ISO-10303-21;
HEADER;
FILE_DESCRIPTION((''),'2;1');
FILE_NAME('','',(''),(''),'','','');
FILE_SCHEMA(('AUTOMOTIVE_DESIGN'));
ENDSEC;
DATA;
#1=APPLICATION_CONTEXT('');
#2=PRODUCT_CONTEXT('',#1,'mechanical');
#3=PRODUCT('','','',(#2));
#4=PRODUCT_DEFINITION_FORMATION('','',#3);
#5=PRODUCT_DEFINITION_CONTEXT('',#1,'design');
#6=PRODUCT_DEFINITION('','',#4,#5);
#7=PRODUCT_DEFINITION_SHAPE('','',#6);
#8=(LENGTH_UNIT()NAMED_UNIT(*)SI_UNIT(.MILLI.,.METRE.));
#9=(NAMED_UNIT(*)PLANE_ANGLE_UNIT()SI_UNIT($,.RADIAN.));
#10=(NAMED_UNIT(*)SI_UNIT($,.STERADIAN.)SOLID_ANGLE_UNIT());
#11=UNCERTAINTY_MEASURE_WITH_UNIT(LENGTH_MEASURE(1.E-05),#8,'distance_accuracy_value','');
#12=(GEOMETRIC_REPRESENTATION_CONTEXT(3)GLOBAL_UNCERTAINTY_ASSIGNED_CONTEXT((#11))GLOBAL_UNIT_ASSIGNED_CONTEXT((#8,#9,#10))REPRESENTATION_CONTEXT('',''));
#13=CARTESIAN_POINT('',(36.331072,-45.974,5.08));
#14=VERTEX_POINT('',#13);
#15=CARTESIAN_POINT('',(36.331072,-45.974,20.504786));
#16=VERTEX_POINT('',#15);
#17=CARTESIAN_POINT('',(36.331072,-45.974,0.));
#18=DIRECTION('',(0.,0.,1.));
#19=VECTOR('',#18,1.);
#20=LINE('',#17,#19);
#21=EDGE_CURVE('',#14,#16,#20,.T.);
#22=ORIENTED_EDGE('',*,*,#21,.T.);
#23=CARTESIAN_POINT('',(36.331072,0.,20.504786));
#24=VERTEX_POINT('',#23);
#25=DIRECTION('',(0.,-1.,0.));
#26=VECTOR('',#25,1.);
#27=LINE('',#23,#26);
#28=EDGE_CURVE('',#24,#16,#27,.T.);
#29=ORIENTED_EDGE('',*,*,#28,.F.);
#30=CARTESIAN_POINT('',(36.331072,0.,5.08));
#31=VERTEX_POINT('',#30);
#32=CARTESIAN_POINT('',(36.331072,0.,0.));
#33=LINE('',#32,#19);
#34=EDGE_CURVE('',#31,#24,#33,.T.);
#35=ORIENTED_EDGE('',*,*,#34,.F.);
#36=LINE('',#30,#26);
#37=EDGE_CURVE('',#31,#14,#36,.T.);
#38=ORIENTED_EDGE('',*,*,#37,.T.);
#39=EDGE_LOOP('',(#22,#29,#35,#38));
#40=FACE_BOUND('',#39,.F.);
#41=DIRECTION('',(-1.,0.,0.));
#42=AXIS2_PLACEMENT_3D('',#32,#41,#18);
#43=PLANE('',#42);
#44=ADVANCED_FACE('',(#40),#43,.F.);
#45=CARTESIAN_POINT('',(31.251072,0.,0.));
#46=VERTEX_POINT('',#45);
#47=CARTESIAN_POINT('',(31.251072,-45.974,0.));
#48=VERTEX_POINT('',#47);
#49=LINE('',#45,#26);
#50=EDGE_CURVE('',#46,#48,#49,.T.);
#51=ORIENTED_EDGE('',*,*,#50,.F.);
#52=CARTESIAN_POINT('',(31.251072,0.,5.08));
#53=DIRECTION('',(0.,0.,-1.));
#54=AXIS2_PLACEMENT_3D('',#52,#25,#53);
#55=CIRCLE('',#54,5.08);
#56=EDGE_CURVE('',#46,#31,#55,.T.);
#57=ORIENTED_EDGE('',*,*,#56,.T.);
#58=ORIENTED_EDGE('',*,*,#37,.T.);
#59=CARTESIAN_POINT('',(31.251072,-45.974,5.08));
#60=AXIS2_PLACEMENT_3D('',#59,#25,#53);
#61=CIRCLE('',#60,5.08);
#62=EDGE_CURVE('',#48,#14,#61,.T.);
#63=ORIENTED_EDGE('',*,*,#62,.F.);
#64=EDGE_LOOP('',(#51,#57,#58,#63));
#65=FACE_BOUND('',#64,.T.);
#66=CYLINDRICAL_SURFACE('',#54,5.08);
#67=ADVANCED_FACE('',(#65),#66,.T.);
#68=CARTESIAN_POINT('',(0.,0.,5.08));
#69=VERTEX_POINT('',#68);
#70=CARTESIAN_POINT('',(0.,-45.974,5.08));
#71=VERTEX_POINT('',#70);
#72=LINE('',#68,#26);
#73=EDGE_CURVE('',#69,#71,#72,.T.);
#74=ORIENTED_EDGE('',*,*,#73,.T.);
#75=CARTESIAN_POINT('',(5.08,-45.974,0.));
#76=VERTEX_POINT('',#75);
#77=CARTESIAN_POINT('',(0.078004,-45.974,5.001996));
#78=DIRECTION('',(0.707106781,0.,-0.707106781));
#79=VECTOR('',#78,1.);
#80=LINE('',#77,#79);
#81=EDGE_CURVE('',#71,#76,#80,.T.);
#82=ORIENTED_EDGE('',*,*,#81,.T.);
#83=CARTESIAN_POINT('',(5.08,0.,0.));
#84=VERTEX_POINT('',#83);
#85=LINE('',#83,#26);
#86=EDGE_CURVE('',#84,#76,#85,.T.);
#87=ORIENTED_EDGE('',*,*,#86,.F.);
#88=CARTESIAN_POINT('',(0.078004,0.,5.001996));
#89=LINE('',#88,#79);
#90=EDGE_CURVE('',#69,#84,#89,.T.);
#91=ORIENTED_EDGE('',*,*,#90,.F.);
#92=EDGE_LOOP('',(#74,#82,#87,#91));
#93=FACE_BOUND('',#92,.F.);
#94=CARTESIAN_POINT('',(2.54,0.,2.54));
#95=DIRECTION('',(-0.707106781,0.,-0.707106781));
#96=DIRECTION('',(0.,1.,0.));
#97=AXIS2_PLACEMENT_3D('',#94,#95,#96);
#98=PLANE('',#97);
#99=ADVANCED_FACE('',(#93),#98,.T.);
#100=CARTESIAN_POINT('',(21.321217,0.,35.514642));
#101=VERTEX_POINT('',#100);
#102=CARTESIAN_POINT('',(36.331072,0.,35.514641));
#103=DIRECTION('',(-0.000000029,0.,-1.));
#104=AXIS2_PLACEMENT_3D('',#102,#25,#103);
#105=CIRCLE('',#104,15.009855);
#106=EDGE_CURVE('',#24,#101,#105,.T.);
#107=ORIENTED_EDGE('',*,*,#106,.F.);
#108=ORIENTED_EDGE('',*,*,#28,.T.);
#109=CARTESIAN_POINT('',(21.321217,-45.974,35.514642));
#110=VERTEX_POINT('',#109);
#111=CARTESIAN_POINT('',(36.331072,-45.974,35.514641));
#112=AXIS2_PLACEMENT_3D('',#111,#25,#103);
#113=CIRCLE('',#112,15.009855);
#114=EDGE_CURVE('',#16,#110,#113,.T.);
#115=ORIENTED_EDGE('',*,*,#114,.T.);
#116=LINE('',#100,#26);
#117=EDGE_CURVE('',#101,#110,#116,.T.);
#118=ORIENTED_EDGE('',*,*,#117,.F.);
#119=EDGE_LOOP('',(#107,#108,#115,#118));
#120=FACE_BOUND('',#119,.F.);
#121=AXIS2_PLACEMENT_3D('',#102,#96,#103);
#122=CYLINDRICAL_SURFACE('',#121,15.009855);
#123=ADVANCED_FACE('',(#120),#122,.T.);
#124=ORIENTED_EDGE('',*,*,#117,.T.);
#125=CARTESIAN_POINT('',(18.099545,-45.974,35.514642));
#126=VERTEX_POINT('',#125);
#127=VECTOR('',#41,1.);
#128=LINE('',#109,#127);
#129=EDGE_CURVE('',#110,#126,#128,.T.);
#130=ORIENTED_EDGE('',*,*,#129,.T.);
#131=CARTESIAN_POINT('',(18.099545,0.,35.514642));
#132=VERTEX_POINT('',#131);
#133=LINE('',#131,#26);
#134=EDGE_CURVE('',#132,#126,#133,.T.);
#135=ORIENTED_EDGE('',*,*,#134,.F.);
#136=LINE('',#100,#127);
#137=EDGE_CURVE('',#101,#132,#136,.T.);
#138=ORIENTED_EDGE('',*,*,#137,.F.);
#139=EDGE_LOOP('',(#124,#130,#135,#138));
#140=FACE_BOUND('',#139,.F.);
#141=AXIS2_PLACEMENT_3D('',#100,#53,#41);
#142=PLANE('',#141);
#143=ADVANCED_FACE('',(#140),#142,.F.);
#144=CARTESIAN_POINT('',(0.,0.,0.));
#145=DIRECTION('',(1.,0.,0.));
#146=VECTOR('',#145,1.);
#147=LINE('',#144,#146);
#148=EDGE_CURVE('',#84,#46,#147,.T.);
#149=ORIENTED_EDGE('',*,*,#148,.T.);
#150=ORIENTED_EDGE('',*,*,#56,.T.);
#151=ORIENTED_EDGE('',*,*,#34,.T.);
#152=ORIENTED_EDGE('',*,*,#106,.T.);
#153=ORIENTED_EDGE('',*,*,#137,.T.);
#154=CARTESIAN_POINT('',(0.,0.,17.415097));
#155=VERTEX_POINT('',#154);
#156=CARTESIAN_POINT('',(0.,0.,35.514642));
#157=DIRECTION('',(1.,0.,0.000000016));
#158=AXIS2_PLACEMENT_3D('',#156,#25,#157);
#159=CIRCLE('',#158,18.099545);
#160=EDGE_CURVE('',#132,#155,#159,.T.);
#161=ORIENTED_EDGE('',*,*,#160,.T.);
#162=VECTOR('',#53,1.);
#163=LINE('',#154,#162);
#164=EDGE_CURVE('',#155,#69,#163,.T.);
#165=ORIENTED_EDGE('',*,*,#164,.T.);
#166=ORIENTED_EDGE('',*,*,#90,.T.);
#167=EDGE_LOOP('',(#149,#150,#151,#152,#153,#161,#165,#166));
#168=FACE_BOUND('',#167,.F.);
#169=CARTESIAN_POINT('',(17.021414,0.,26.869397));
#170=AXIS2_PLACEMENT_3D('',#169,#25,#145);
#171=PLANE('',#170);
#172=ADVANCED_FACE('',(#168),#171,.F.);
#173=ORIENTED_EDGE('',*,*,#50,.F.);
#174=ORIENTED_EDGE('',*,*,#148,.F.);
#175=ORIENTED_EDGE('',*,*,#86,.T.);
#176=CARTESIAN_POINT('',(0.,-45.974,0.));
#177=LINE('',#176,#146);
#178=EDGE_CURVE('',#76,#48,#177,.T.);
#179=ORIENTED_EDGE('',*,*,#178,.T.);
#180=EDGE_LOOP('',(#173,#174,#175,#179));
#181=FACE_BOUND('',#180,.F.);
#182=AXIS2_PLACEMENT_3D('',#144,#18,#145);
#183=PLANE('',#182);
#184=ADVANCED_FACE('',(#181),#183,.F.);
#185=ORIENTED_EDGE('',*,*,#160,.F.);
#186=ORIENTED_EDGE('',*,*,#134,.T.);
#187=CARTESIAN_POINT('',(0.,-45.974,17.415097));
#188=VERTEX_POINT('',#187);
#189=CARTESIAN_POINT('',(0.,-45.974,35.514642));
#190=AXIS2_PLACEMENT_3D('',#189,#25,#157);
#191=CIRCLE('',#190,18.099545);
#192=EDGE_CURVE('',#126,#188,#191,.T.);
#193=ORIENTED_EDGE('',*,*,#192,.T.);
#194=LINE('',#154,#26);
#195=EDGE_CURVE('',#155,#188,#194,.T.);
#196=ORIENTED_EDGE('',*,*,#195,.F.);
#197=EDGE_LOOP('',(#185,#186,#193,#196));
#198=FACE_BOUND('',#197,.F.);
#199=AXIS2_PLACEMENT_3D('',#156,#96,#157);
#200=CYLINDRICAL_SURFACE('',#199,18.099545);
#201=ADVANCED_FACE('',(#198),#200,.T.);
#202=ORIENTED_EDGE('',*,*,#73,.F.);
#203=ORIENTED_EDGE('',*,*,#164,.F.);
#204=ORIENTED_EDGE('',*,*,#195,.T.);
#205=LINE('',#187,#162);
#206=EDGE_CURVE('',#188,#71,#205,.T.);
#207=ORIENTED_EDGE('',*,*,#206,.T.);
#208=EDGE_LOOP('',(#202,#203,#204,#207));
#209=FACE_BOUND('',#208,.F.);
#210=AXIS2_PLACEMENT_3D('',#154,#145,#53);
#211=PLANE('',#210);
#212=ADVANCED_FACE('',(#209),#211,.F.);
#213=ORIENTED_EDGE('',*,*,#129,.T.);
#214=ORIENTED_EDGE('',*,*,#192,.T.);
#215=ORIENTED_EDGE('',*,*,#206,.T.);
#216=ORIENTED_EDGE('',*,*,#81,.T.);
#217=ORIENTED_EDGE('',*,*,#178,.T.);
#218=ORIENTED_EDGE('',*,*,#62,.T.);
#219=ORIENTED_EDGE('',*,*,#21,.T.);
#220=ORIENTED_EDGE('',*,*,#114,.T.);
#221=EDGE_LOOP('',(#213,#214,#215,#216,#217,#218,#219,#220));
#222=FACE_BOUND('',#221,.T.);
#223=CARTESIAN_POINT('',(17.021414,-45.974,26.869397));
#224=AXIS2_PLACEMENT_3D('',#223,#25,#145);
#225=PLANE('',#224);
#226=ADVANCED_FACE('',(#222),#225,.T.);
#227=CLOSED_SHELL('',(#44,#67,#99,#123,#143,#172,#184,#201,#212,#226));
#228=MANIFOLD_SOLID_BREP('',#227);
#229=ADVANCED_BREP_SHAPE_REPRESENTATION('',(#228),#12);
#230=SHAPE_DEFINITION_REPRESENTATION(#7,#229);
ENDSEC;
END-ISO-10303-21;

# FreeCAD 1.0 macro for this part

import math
import FreeCAD as App
import Part
import Sketcher
Q = App.Units.Quantity


def edges_at(feature, points):
    """Names of the edges that pass closest to the given points."""
    edges = feature.Shape.Edges
    near = lambda p: min(range(len(edges)), key=lambda i: edges[i].distToShape(Part.Vertex(*p))[0])
    return sorted({f"Edge{near(p) + 1}" for p in points})

doc = App.newDocument("Part")
body = doc.addObject("PartDesign::Body", "Body")

# Sketch on XZ plane
sketch1 = doc.addObject("Sketcher::SketchObject", "Sketch")
body.addObject(sketch1)
sketch1.AttachmentSupport = (doc.XZ_Plane, [""])
sketch1.MapMode = "FlatFace"
sketch1.addGeometry(Part.LineSegment(App.Vector(0, 17.415097, 0), App.Vector(0, 0, 0)), False)
sketch1.addGeometry(Part.LineSegment(App.Vector(0, 0, 0), App.Vector(36.331072, 0, 0)), False)
sketch1.addGeometry(Part.LineSegment(App.Vector(36.331072, 0, 0), App.Vector(36.331072, 20.504786, 0)), False)
sketch1.addGeometry(Part.ArcOfCircle(Part.Circle(App.Vector(36.331072, 35.514641, 0), App.Vector(0, 0, 1), 15.009855), math.radians(-90.000002), math.radians(179.999998)), False)
sketch1.addGeometry(Part.LineSegment(App.Vector(21.321217, 35.514642, 0), App.Vector(18.099545, 35.514642, 0)), False)
sketch1.addGeometry(Part.ArcOfCircle(Part.Circle(App.Vector(0, 35.514642, 0), App.Vector(0, 0, 1), 18.099545), math.radians(0.000001), math.radians(269.999999)), False)
sketch1.addConstraint(Sketcher.Constraint("Coincident", 0, 2, 1, 1))
sketch1.addConstraint(Sketcher.Constraint("Coincident", 1, 2, 2, 1))
sketch1.addConstraint(Sketcher.Constraint("Coincident", 2, 2, 3, 1))
sketch1.addConstraint(Sketcher.Constraint("Coincident", 3, 2, 4, 1))
sketch1.addConstraint(Sketcher.Constraint("Coincident", 4, 2, 5, 1))
sketch1.addConstraint(Sketcher.Constraint("Coincident", 5, 2, 0, 1))
sketch1.addConstraint(Sketcher.Constraint("Vertical", 0))
sketch1.addConstraint(Sketcher.Constraint("Horizontal", 1))
sketch1.addConstraint(Sketcher.Constraint("Vertical", 2))
sketch1.addConstraint(Sketcher.Constraint("Horizontal", 4))
sketch1.addConstraint(Sketcher.Constraint("Coincident", 0, 2, -1, 1))
sketch1.addConstraint(Sketcher.Constraint("PointOnObject", 5, 3, -2))
sketch1.addConstraint(Sketcher.Constraint("Horizontal", 3, 3, 5, 3))
sketch1.addConstraint(Sketcher.Constraint("Horizontal", 5, 3, 3, 2))
sketch1.addConstraint(Sketcher.Constraint("Vertical", 3, 3, 1, 2))
sketch1.addConstraint(Sketcher.Constraint("Radius", 3, 15.009855))
sketch1.addConstraint(Sketcher.Constraint("Radius", 5, 18.099545))
sketch1.addConstraint(Sketcher.Constraint("DistanceX", 1, 1, 1, 2, 36.331072))
sketch1.addConstraint(Sketcher.Constraint("DistanceY", 0, 2, 0, 1, 17.415097))
pad1 = doc.addObject("PartDesign::Pad", "Pad")
body.addObject(pad1)
pad1.Profile = sketch1
pad1.Length = Q("1.81 in")
doc.recompute()

chamfer = doc.addObject("PartDesign::Chamfer", "Chamfer")
body.addObject(chamfer)
chamfer.Base = (pad1, edges_at(pad1, [(0, -22.987, 0)]))
chamfer.Size = Q("0.2 in")
doc.recompute()

fillet = doc.addObject("PartDesign::Fillet", "Fillet")
body.addObject(fillet)
fillet.Base = (chamfer, edges_at(chamfer, [(36.331, -22.987, 0)]))
fillet.Radius = Q("0.2 in")

doc.recompute()
